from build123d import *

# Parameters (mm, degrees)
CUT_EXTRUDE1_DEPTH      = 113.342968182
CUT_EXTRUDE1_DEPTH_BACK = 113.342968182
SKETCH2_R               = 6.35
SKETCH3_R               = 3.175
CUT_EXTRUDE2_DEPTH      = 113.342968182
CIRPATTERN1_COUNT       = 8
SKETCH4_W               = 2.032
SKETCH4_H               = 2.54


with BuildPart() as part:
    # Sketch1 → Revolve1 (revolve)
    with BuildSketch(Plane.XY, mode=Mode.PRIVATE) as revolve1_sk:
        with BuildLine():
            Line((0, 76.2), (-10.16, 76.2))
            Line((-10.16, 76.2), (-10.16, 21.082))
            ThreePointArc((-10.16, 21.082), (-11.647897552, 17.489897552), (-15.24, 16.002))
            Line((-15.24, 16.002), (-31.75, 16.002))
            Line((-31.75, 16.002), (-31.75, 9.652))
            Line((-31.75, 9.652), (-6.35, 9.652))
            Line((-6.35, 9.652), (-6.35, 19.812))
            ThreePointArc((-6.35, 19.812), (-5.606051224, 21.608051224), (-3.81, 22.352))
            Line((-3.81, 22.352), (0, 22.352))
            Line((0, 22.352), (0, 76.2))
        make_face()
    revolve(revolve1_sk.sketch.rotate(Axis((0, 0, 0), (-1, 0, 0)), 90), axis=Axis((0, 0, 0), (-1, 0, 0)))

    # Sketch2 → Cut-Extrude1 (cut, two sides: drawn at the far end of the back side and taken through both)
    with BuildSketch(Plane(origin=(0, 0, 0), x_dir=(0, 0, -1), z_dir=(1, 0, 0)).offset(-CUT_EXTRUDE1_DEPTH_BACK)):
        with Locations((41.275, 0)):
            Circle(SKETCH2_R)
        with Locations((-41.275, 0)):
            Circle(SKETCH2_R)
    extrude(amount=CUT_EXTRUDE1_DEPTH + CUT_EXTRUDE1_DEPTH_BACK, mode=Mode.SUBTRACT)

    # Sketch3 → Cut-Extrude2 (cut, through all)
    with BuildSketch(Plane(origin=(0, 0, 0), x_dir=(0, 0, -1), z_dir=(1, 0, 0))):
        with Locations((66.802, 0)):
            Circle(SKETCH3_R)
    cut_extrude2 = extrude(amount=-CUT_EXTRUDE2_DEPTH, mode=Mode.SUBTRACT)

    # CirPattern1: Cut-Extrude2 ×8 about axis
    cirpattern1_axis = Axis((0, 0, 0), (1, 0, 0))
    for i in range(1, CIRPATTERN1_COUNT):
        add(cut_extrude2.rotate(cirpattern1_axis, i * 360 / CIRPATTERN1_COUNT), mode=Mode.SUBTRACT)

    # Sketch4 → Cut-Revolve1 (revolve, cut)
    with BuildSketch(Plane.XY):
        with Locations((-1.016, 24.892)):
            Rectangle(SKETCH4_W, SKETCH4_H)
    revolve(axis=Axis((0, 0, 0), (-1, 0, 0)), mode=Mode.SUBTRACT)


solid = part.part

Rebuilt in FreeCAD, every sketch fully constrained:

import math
import FreeCAD as App
import Part
import Sketcher

V = App.Vector
Q = App.Units.Quantity

doc = App.newDocument("Part")
params = doc.addObject("Spreadsheet::Sheet", "Params")
for row, (alias, value) in enumerate([
    ("sketch1_radius", "0.2 in"),
    ("sketch1_radius2", "0.1 in"),
    ("sketch1_width", "1 in"),
    ("sketch1_width2", "0.4 in"),
    ("sketch1_width3", "0.65 in"),
    ("revolution_angle", "360 deg"),
    ("sketch2_diameter", "0.5 in"),
    ("sketch3_diameter", "0.25 in"),
    ("sketch4_height", "0.1 in"),
    ("sketch4_width", "0.08 in"),
    ("groove_angle", "360 deg"),
], start=1):
    params.set(f"A{row}", alias)
    params.set(f"B{row}", "=" + value)
    params.setAlias(f"B{row}", alias)

body = doc.addObject("PartDesign::Body", "Body")

# Sketch on XY plane
sketch1 = body.newObject("Sketcher::SketchObject", "Sketch")
sketch1.AttachmentSupport = (doc.getObject("XY_Plane"), [""])
sketch1.MapMode = "FlatFace"
sketch1.addGeometry(Part.LineSegment(V(0, 76.2, 0), V(-10.2, 76.2, 0)), False)
sketch1.addGeometry(Part.LineSegment(V(-10.2, 76.2, 0), V(-10.2, 21.1, 0)), False)
sketch1.addGeometry(Part.ArcOfCircle(Part.Circle(V(-15.2, 21.1, 0), V(0, 0, 1), 5.1), math.radians(-90), math.radians(0)), False)
sketch1.addGeometry(Part.LineSegment(V(-15.2, 16, 0), V(-31.8, 16, 0)), False)
sketch1.addGeometry(Part.LineSegment(V(-31.8, 16, 0), V(-31.8, 9.7, 0)), False)
sketch1.addGeometry(Part.LineSegment(V(-31.8, 9.7, 0), V(-6.3, 9.7, 0)), False)
sketch1.addGeometry(Part.LineSegment(V(-6.3, 9.7, 0), V(-6.3, 19.8, 0)), False)
sketch1.addGeometry(Part.ArcOfCircle(Part.Circle(V(-3.8, 19.8, 0), V(0, 0, 1), 2.5), math.radians(90), math.radians(180)), False)
sketch1.addGeometry(Part.LineSegment(V(-3.8, 22.4, 0), V(0, 22.4, 0)), False)
sketch1.addGeometry(Part.LineSegment(V(0, 22.4, 0), V(0, 76.2, 0)), False)
sketch1.addConstraint(Sketcher.Constraint("Coincident", 0, 2, 1, 1))
sketch1.addConstraint(Sketcher.Constraint("Tangent", 1, 2, 2, 2))
sketch1.addConstraint(Sketcher.Constraint("Tangent", 2, 1, 3, 1))
sketch1.addConstraint(Sketcher.Constraint("Coincident", 3, 2, 4, 1))
sketch1.addConstraint(Sketcher.Constraint("Coincident", 4, 2, 5, 1))
sketch1.addConstraint(Sketcher.Constraint("Coincident", 5, 2, 6, 1))
sketch1.addConstraint(Sketcher.Constraint("Tangent", 6, 2, 7, 2))
sketch1.addConstraint(Sketcher.Constraint("Tangent", 7, 1, 8, 1))
sketch1.addConstraint(Sketcher.Constraint("Coincident", 8, 2, 9, 1))
sketch1.addConstraint(Sketcher.Constraint("Coincident", 9, 2, 0, 1))
sketch1.addConstraint(Sketcher.Constraint("Horizontal", 0))
sketch1.addConstraint(Sketcher.Constraint("Vertical", 1))
sketch1.addConstraint(Sketcher.Constraint("Horizontal", 3))
sketch1.addConstraint(Sketcher.Constraint("Vertical", 4))
sketch1.addConstraint(Sketcher.Constraint("Horizontal", 5))
sketch1.addConstraint(Sketcher.Constraint("Vertical", 6))
sketch1.addConstraint(Sketcher.Constraint("Horizontal", 8))
sketch1.addConstraint(Sketcher.Constraint("Vertical", 9))
sketch1.addConstraint(Sketcher.Constraint("PointOnObject", 8, 2, -2))
sketch1.addConstraint(Sketcher.Constraint("Equal", 0, 6))
sketch1.addConstraint(Sketcher.Constraint("Radius", 2, Q("0.2 in")))
sketch1.addConstraint(Sketcher.Constraint("Radius", 7, Q("0.1 in")))
sketch1.addConstraint(Sketcher.Constraint("DistanceX", 5, 1, 5, 2, Q("1 in")))
sketch1.addConstraint(Sketcher.Constraint("DistanceX", 0, 2, 0, 1, Q("0.4 in")))
sketch1.addConstraint(Sketcher.Constraint("DistanceY", -1, 1, 0, 2, Q("3 in")))
sketch1.addConstraint(Sketcher.Constraint("DistanceX", 3, 2, 3, 1, Q("0.65 in")))
sketch1.addConstraint(Sketcher.Constraint("DistanceY", 1, 2, 1, 1, Q("2.17 in")))
sketch1.addConstraint(Sketcher.Constraint("DistanceY", 4, 2, 4, 1, Q("0.25 in")))
sketch1.setExpression("Constraints[20]", "Params.sketch1_radius")
sketch1.setExpression("Constraints[21]", "Params.sketch1_radius2")
sketch1.setExpression("Constraints[22]", "Params.sketch1_width")
sketch1.setExpression("Constraints[23]", "Params.sketch1_width2")
sketch1.setExpression("Constraints[25]", "Params.sketch1_width3")
revolution = body.newObject("PartDesign::Revolution", "Revolution")
revolution.Profile = sketch1
revolution.ReferenceAxis = (sketch1, ["H_Axis"])
revolution.setExpression("Angle", "Params.revolution_angle")

# Sketch on YZ plane
sketch2 = body.newObject("Sketcher::SketchObject", "Sketch001")
sketch2.AttachmentSupport = (doc.getObject("YZ_Plane"), [""])
sketch2.MapMode = "FlatFace"
sketch2.addGeometry(Part.Circle(V(0, -41, 0), V(0, 0, 1), 6), False)
sketch2.addGeometry(Part.Circle(V(0, 41, 0), V(0, 0, 1), 6), False)
sketch2.addConstraint(Sketcher.Constraint("Equal", 0, 1))
sketch2.addConstraint(Sketcher.Constraint("Symmetric", 0, 3, 1, 3, -1, 1))
sketch2.addConstraint(Sketcher.Constraint("PointOnObject", 0, 3, -2))
sketch2.addConstraint(Sketcher.Constraint("Diameter", 0, Q("0.5 in")))
sketch2.addConstraint(Sketcher.Constraint("DistanceY", 0, 3, 1, 3, Q("3.25 in")))
sketch2.setExpression("Constraints[3]", "Params.sketch2_diameter")
pocket1 = body.newObject("PartDesign::Pocket", "Pocket")
pocket1.Profile = sketch2
pocket1.Type = "ThroughAll"
pocket1.Midplane = True

# Sketch on YZ plane
sketch3 = body.newObject("Sketcher::SketchObject", "Sketch002")
sketch3.AttachmentSupport = (doc.getObject("YZ_Plane"), [""])
sketch3.MapMode = "FlatFace"
sketch3.addGeometry(Part.Circle(V(0, -66.8, 0), V(0, 0, 1), 3.2), False)
sketch3.addConstraint(Sketcher.Constraint("PointOnObject", 0, 3, -2))
sketch3.addConstraint(Sketcher.Constraint("Diameter", 0, Q("0.25 in")))
sketch3.addConstraint(Sketcher.Constraint("DistanceY", 0, 3, -1, 1, Q("2.63 in")))
sketch3.setExpression("Constraints[1]", "Params.sketch3_diameter")
pocket2 = body.newObject("PartDesign::Pocket", "Pocket001")
pocket2.Profile = sketch3
pocket2.Type = "ThroughAll"
doc.recompute()

polarpattern = body.newObject("PartDesign::PolarPattern", "PolarPattern")
polarpattern.Originals = [pocket2]
polarpattern.Axis = (doc.getObject("X_Axis"), [""])
polarpattern.Angle = 360
polarpattern.Occurrences = 8
body.Tip = polarpattern

# Sketch on XY plane
sketch4 = body.newObject("Sketcher::SketchObject", "Sketch003")
sketch4.AttachmentSupport = (doc.getObject("XY_Plane"), [""])
sketch4.MapMode = "FlatFace"
sketch4.addGeometry(Part.LineSegment(V(-2, 26.2, 0), V(-2, 23.6, 0)), False)
sketch4.addGeometry(Part.LineSegment(V(-2, 23.6, 0), V(0, 23.6, 0)), False)
sketch4.addGeometry(Part.LineSegment(V(0, 23.6, 0), V(0, 26.2, 0)), False)
sketch4.addGeometry(Part.LineSegment(V(0, 26.2, 0), V(-2, 26.2, 0)), False)
sketch4.addConstraint(Sketcher.Constraint("Coincident", 0, 2, 1, 1))
sketch4.addConstraint(Sketcher.Constraint("Coincident", 1, 2, 2, 1))
sketch4.addConstraint(Sketcher.Constraint("Coincident", 2, 2, 3, 1))
sketch4.addConstraint(Sketcher.Constraint("Coincident", 3, 2, 0, 1))
sketch4.addConstraint(Sketcher.Constraint("Vertical", 0))
sketch4.addConstraint(Sketcher.Constraint("Horizontal", 1))
sketch4.addConstraint(Sketcher.Constraint("Vertical", 2))
sketch4.addConstraint(Sketcher.Constraint("Horizontal", 3))
sketch4.addConstraint(Sketcher.Constraint("PointOnObject", 1, 2, -2))
sketch4.addConstraint(Sketcher.Constraint("DistanceY", 0, 2, 0, 1, Q("0.1 in")))
sketch4.addConstraint(Sketcher.Constraint("DistanceX", 1, 1, 1, 2, Q("0.08 in")))
sketch4.addConstraint(Sketcher.Constraint("DistanceY", -1, 1, 0, 2, Q("0.93 in")))
sketch4.setExpression("Constraints[9]", "Params.sketch4_height")
sketch4.setExpression("Constraints[10]", "Params.sketch4_width")
groove = body.newObject("PartDesign::Groove", "Groove")
groove.Profile = sketch4
groove.ReferenceAxis = (sketch4, ["H_Axis"])
groove.setExpression("Angle", "Params.groove_angle")

doc.recompute()
